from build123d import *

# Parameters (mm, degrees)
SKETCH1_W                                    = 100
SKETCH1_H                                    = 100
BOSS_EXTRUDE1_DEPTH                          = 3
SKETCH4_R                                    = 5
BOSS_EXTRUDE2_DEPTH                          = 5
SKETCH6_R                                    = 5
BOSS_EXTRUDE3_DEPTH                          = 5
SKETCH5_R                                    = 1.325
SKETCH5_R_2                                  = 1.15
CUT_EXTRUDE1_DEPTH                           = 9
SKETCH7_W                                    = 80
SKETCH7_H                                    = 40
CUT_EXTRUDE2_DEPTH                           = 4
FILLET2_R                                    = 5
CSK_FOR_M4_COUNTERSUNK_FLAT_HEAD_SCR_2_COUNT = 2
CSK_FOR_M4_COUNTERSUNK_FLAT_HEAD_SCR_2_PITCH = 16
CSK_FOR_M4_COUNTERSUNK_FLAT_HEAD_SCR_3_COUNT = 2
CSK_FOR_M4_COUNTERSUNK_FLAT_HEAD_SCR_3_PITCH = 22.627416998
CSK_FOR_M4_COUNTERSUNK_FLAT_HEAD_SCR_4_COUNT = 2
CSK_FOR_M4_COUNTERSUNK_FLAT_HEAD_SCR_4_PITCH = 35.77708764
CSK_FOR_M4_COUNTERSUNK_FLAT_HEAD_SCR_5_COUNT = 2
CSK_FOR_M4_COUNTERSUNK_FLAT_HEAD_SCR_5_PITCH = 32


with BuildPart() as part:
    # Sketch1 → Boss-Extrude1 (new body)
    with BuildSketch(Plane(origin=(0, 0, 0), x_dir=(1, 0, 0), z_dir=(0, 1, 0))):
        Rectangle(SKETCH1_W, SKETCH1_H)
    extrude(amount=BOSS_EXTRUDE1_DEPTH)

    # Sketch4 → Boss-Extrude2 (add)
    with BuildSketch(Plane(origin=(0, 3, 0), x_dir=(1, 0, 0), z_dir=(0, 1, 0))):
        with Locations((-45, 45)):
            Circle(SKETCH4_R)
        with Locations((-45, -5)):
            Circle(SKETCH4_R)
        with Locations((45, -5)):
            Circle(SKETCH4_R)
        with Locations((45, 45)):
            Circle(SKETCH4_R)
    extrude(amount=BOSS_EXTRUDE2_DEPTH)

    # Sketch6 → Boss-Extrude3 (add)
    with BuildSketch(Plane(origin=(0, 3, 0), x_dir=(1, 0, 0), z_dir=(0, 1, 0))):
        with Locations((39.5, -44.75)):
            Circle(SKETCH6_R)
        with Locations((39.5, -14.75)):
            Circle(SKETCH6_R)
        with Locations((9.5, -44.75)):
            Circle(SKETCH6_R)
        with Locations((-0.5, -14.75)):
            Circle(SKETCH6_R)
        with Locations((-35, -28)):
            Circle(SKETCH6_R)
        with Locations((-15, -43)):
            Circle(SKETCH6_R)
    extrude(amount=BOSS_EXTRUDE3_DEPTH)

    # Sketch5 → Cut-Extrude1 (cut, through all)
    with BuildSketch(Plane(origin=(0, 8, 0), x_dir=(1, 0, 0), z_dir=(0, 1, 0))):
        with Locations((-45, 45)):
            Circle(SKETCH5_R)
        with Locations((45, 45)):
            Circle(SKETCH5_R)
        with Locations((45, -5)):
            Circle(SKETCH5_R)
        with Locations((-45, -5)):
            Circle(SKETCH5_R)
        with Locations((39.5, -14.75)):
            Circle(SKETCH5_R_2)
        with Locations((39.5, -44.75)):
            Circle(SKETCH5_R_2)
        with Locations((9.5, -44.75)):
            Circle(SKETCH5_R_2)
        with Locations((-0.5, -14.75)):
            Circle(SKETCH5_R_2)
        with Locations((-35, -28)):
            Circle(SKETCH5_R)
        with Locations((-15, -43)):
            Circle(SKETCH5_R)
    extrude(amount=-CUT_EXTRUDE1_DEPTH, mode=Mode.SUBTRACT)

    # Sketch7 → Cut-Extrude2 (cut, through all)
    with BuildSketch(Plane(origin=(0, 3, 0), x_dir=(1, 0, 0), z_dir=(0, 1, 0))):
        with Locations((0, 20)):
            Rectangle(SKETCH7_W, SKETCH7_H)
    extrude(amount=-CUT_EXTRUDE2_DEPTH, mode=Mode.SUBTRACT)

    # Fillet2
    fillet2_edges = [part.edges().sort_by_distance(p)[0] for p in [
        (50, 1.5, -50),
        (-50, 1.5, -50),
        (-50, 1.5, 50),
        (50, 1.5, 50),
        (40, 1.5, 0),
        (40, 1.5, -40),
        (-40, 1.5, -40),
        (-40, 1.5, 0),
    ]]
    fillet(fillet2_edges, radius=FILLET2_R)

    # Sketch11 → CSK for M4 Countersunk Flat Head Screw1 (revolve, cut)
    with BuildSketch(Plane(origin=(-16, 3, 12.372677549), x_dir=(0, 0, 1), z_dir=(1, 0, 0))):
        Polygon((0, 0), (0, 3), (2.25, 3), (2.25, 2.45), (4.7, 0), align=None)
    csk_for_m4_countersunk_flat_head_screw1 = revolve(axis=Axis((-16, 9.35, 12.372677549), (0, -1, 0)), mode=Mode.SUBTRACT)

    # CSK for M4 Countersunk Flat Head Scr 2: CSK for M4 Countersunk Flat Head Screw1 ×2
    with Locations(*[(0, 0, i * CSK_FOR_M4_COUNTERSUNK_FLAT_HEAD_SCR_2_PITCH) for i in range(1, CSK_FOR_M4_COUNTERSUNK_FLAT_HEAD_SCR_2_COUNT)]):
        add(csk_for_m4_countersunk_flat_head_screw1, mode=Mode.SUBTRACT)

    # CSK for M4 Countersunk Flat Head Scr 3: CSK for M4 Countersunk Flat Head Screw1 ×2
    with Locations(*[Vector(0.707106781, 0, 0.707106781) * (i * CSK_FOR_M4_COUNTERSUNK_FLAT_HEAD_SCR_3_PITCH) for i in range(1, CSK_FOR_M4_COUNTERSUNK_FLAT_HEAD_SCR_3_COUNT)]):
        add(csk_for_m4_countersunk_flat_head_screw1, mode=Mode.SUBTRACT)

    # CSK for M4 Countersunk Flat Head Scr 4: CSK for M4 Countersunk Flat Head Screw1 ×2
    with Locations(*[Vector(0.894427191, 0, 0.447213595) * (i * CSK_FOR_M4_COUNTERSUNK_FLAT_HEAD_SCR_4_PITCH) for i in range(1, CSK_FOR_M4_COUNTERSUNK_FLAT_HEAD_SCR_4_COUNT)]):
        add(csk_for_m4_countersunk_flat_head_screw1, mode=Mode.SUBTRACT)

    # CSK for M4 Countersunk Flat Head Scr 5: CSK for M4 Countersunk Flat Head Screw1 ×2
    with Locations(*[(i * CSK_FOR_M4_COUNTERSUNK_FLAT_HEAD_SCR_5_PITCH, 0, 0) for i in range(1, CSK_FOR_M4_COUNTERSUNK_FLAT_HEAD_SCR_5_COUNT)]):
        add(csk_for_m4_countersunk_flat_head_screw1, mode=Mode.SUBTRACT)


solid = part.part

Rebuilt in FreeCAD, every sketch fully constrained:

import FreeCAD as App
import Part
import Sketcher

V = App.Vector
Q = App.Units.Quantity


def edges_at(feature, points):
    """Names of the edges that pass closest to the given points."""
    edges = feature.Shape.Edges
    near = lambda p: min(range(len(edges)), key=lambda i: edges[i].distToShape(Part.Vertex(*p))[0])
    return sorted({f"Edge{near(p) + 1}" for p in points})

doc = App.newDocument("Part")
params = doc.addObject("Spreadsheet::Sheet", "Params")
for row, (alias, value) in enumerate([
    ("sketch1_width", "100 mm"),
    ("pad1_length", "3 mm"),
    ("sketch2_diameter", "10 mm"),
    ("pad2_length", "5 mm"),
    ("sketch3_diameter", "10 mm"),
    ("pad3_length", "5 mm"),
    ("sketch4_diameter", "2.3 mm"),
    ("sketch4_diameter2", "2.65 mm"),
    ("sketch5_width", "80 mm"),
    ("sketch5_height", "40 mm"),
    ("fillet_radius", "5 mm"),
    ("sketch6_width", "3 mm"),
    ("sketch6_height", "4.7 mm"),
    ("sketch6_width2", "0.55 mm"),
    ("groove_angle", "360 deg"),
    ("linearpattern_pitch", "16 mm"),
    ("linearpattern2_pitch", "22.627417 mm"),
    ("linearpattern3_pitch", "35.777088 mm"),
    ("linearpattern4_pitch", "32 mm"),
], start=1):
    params.set(f"A{row}", alias)
    params.set(f"B{row}", "=" + value)
    params.setAlias(f"B{row}", alias)

body = doc.addObject("PartDesign::Body", "Body")

sketch1 = doc.addObject("Sketcher::SketchObject", "Sketch")
body.addObject(sketch1)
sketch1.AttachmentSupport = (doc.XZ_Plane, [""])
sketch1.MapMode = "FlatFace"
sketch1.addGeometry(Part.LineSegment(V(-50, -50, 0), V(-50, 50, 0)), False)
sketch1.addGeometry(Part.LineSegment(V(-50, 50, 0), V(50, 50, 0)), False)
sketch1.addGeometry(Part.LineSegment(V(50, 50, 0), V(50, -50, 0)), False)
sketch1.addGeometry(Part.LineSegment(V(50, -50, 0), V(-50, -50, 0)), False)
sketch1.addConstraint(Sketcher.Constraint("Coincident", 0, 2, 1, 1))
sketch1.addConstraint(Sketcher.Constraint("Coincident", 1, 2, 2, 1))
sketch1.addConstraint(Sketcher.Constraint("Coincident", 2, 2, 3, 1))
sketch1.addConstraint(Sketcher.Constraint("Coincident", 3, 2, 0, 1))
sketch1.addConstraint(Sketcher.Constraint("Vertical", 0))
sketch1.addConstraint(Sketcher.Constraint("Horizontal", 1))
sketch1.addConstraint(Sketcher.Constraint("Vertical", 2))
sketch1.addConstraint(Sketcher.Constraint("Horizontal", 3))
sketch1.addConstraint(Sketcher.Constraint("Symmetric", 0, 2, 2, 2, -1, 1))
sketch1.addConstraint(Sketcher.Constraint("Equal", 3, 0))
sketch1.addConstraint(Sketcher.Constraint("DistanceX", 1, 1, 1, 2, Q("100 mm")))
sketch1.setExpression("Constraints[10]", "Params.sketch1_width")
pad1 = doc.addObject("PartDesign::Pad", "Pad")
body.addObject(pad1)
pad1.Profile = sketch1
pad1.setExpression("Length", "Params.pad1_length")
pad1.Reversed = True

sketch2 = doc.addObject("Sketcher::SketchObject", "Sketch001")
body.addObject(sketch2)
sketch2.AttachmentSupport = (doc.XZ_Plane, [""])
sketch2.MapMode = "FlatFace"
sketch2.AttachmentOffset = App.Placement(V(0, 0, -3), App.Rotation())
sketch2.addGeometry(Part.Circle(V(-45, -45, 0), V(0, 0, 1), 5), False)
sketch2.addGeometry(Part.Circle(V(-45, 5, 0), V(0, 0, 1), 5), False)
sketch2.addGeometry(Part.Circle(V(45, 5, 0), V(0, 0, 1), 5), False)
sketch2.addGeometry(Part.Circle(V(45, -45, 0), V(0, 0, 1), 5), False)
sketch2.addConstraint(Sketcher.Constraint("Equal", 0, 1))
sketch2.addConstraint(Sketcher.Constraint("Equal", 1, 2))
sketch2.addConstraint(Sketcher.Constraint("Equal", 2, 3))
sketch2.addConstraint(Sketcher.Constraint("Symmetric", 1, 3, 2, 3, -2))
sketch2.addConstraint(Sketcher.Constraint("Symmetric", 0, 3, 3, 3, -2))
sketch2.addConstraint(Sketcher.Constraint("Vertical", 0, 3, 1, 3))
sketch2.addConstraint(Sketcher.Constraint("Diameter", 0, Q("10 mm")))
sketch2.addConstraint(Sketcher.Constraint("DistanceX", 0, 3, -1, 1, Q("45 mm")))
sketch2.addConstraint(Sketcher.Constraint("DistanceY", 0, 3, -1, 1, Q("45 mm")))
sketch2.addConstraint(Sketcher.Constraint("DistanceY", -1, 1, 1, 3, Q("5 mm")))
sketch2.setExpression("Constraints[6]", "Params.sketch2_diameter")
pad2 = doc.addObject("PartDesign::Pad", "Pad001")
body.addObject(pad2)
pad2.Profile = sketch2
pad2.setExpression("Length", "Params.pad2_length")
pad2.Reversed = True

sketch3 = doc.addObject("Sketcher::SketchObject", "Sketch002")
body.addObject(sketch3)
sketch3.AttachmentSupport = (doc.XZ_Plane, [""])
sketch3.MapMode = "FlatFace"
sketch3.AttachmentOffset = App.Placement(V(0, 0, -3), App.Rotation())
sketch3.addGeometry(Part.Circle(V(40, 45, 0), V(0, 0, 1), 5), False)
sketch3.addGeometry(Part.Circle(V(40, 15, 0), V(0, 0, 1), 5), False)
sketch3.addGeometry(Part.Circle(V(10, 45, 0), V(0, 0, 1), 5), False)
sketch3.addGeometry(Part.Circle(V(0, 15, 0), V(0, 0, 1), 5), False)
sketch3.addGeometry(Part.Circle(V(-35, 28, 0), V(0, 0, 1), 5), False)
sketch3.addGeometry(Part.Circle(V(-15, 43, 0), V(0, 0, 1), 5), False)
sketch3.addConstraint(Sketcher.Constraint("Equal", 0, 1))
sketch3.addConstraint(Sketcher.Constraint("Equal", 1, 2))
sketch3.addConstraint(Sketcher.Constraint("Equal", 2, 3))
sketch3.addConstraint(Sketcher.Constraint("Equal", 3, 4))
sketch3.addConstraint(Sketcher.Constraint("Equal", 4, 5))
sketch3.addConstraint(Sketcher.Constraint("Horizontal", 0, 3, 2, 3))
sketch3.addConstraint(Sketcher.Constraint("Horizontal", 1, 3, 3, 3))
sketch3.addConstraint(Sketcher.Constraint("Vertical", 0, 3, 1, 3))
sketch3.addConstraint(Sketcher.Constraint("Diameter", 0, Q("10 mm")))
sketch3.addConstraint(Sketcher.Constraint("DistanceX", 4, 3, -1, 1, Q("35 mm")))
sketch3.addConstraint(Sketcher.Constraint("DistanceY", -1, 1, 4, 3, Q("28 mm")))
sketch3.addConstraint(Sketcher.Constraint("DistanceX", 5, 3, -1, 1, Q("15 mm")))
sketch3.addConstraint(Sketcher.Constraint("DistanceY", -1, 1, 5, 3, Q("43 mm")))
sketch3.addConstraint(Sketcher.Constraint("DistanceY", 1, 3, 0, 3, Q("30 mm")))
sketch3.addConstraint(Sketcher.Constraint("DistanceX", 2, 3, 0, 3, Q("30 mm")))
sketch3.addConstraint(Sketcher.Constraint("DistanceX", 3, 3, 2, 3, Q("10 mm")))
sketch3.addConstraint(Sketcher.Constraint("DistanceX", -1, 1, 0, 3, Q("39.5 mm")))
sketch3.addConstraint(Sketcher.Constraint("DistanceY", -1, 1, 0, 3, Q("44.75 mm")))
sketch3.setExpression("Constraints[8]", "Params.sketch3_diameter")
pad3 = doc.addObject("PartDesign::Pad", "Pad002")
body.addObject(pad3)
pad3.Profile = sketch3
pad3.setExpression("Length", "Params.pad3_length")
pad3.Reversed = True

sketch4 = doc.addObject("Sketcher::SketchObject", "Sketch003")
body.addObject(sketch4)
sketch4.AttachmentSupport = (doc.XZ_Plane, [""])
sketch4.MapMode = "FlatFace"
sketch4.AttachmentOffset = App.Placement(V(0, 0, -8), App.Rotation())
sketch4.addGeometry(Part.Circle(V(-45, -45, 0), V(0, 0, 1), 1.3), False)
sketch4.addGeometry(Part.Circle(V(45, -45, 0), V(0, 0, 1), 1.3), False)
sketch4.addGeometry(Part.Circle(V(45, 5, 0), V(0, 0, 1), 1.3), False)
sketch4.addGeometry(Part.Circle(V(-45, 5, 0), V(0, 0, 1), 1.3), False)
sketch4.addGeometry(Part.Circle(V(39.5, 14.8, 0), V(0, 0, 1), 1.1), False)
sketch4.addGeometry(Part.Circle(V(39.5, 44.8, 0), V(0, 0, 1), 1.1), False)
sketch4.addGeometry(Part.Circle(V(9.5, 44.8, 0), V(0, 0, 1), 1.1), False)
sketch4.addGeometry(Part.Circle(V(-0.5, 14.8, 0), V(0, 0, 1), 1.1), False)
sketch4.addGeometry(Part.Circle(V(-35, 28, 0), V(0, 0, 1), 1.3), False)
sketch4.addGeometry(Part.Circle(V(-15, 43, 0), V(0, 0, 1), 1.3), False)
sketch4.addConstraint(Sketcher.Constraint("Equal", 0, 1))
sketch4.addConstraint(Sketcher.Constraint("Equal", 1, 2))
sketch4.addConstraint(Sketcher.Constraint("Equal", 2, 3))
sketch4.addConstraint(Sketcher.Constraint("Equal", 4, 5))
sketch4.addConstraint(Sketcher.Constraint("Equal", 5, 6))
sketch4.addConstraint(Sketcher.Constraint("Equal", 6, 7))
sketch4.addConstraint(Sketcher.Constraint("Equal", 3, 8))
sketch4.addConstraint(Sketcher.Constraint("Equal", 8, 9))
sketch4.addConstraint(Sketcher.Constraint("Symmetric", 0, 3, 1, 3, -2))
sketch4.addConstraint(Sketcher.Constraint("Symmetric", 2, 3, 3, 3, -2))
sketch4.addConstraint(Sketcher.Constraint("Horizontal", 5, 3, 6, 3))
sketch4.addConstraint(Sketcher.Constraint("Horizontal", 4, 3, 7, 3))
sketch4.addConstraint(Sketcher.Constraint("Vertical", 1, 3, 2, 3))
sketch4.addConstraint(Sketcher.Constraint("Vertical", 4, 3, 5, 3))
sketch4.addConstraint(Sketcher.Constraint("Diameter", 4, Q("2.3 mm")))
sketch4.addConstraint(Sketcher.Constraint("Diameter", 0, Q("2.65 mm")))
sketch4.addConstraint(Sketcher.Constraint("DistanceX", 0, 3, -1, 1, Q("45 mm")))
sketch4.addConstraint(Sketcher.Constraint("DistanceY", 0, 3, -1, 1, Q("45 mm")))
sketch4.addConstraint(Sketcher.Constraint("DistanceY", -1, 1, 2, 3, Q("5 mm")))
sketch4.addConstraint(Sketcher.Constraint("DistanceX", 8, 3, -1, 1, Q("35 mm")))
sketch4.addConstraint(Sketcher.Constraint("DistanceY", -1, 1, 8, 3, Q("28 mm")))
sketch4.addConstraint(Sketcher.Constraint("DistanceX", 9, 3, -1, 1, Q("15 mm")))
sketch4.addConstraint(Sketcher.Constraint("DistanceY", -1, 1, 9, 3, Q("43 mm")))
sketch4.addConstraint(Sketcher.Constraint("DistanceY", 4, 3, 5, 3, Q("30 mm")))
sketch4.addConstraint(Sketcher.Constraint("DistanceX", 6, 3, 5, 3, Q("30 mm")))
sketch4.addConstraint(Sketcher.Constraint("DistanceX", 7, 3, 6, 3, Q("10 mm")))
sketch4.addConstraint(Sketcher.Constraint("DistanceX", -1, 1, 4, 3, Q("39.5 mm")))
sketch4.addConstraint(Sketcher.Constraint("DistanceY", -1, 1, 4, 3, Q("14.75 mm")))
sketch4.setExpression("Constraints[14]", "Params.sketch4_diameter")
sketch4.setExpression("Constraints[15]", "Params.sketch4_diameter2")
pocket1 = doc.addObject("PartDesign::Pocket", "Pocket")
body.addObject(pocket1)
pocket1.Profile = sketch4
pocket1.Type = "ThroughAll"
pocket1.Reversed = True

sketch5 = doc.addObject("Sketcher::SketchObject", "Sketch004")
body.addObject(sketch5)
sketch5.AttachmentSupport = (doc.XZ_Plane, [""])
sketch5.MapMode = "FlatFace"
sketch5.AttachmentOffset = App.Placement(V(0, 0, -3), App.Rotation())
sketch5.addGeometry(Part.LineSegment(V(-40, -40, 0), V(-40, 0, 0)), False)
sketch5.addGeometry(Part.LineSegment(V(-40, 0, 0), V(40, 0, 0)), False)
sketch5.addGeometry(Part.LineSegment(V(40, 0, 0), V(40, -40, 0)), False)
sketch5.addGeometry(Part.LineSegment(V(40, -40, 0), V(-40, -40, 0)), False)
sketch5.addConstraint(Sketcher.Constraint("Coincident", 0, 2, 1, 1))
sketch5.addConstraint(Sketcher.Constraint("Coincident", 1, 2, 2, 1))
sketch5.addConstraint(Sketcher.Constraint("Coincident", 2, 2, 3, 1))
sketch5.addConstraint(Sketcher.Constraint("Coincident", 3, 2, 0, 1))
sketch5.addConstraint(Sketcher.Constraint("Vertical", 0))
sketch5.addConstraint(Sketcher.Constraint("Horizontal", 1))
sketch5.addConstraint(Sketcher.Constraint("Vertical", 2))
sketch5.addConstraint(Sketcher.Constraint("Horizontal", 3))
sketch5.addConstraint(Sketcher.Constraint("Symmetric", 0, 2, 1, 2, -1, 1))
sketch5.addConstraint(Sketcher.Constraint("DistanceX", 1, 1, 1, 2, Q("80 mm")))
sketch5.addConstraint(Sketcher.Constraint("DistanceY", 0, 1, 0, 2, Q("40 mm")))
sketch5.setExpression("Constraints[9]", "Params.sketch5_width")
sketch5.setExpression("Constraints[10]", "Params.sketch5_height")
pocket2 = doc.addObject("PartDesign::Pocket", "Pocket001")
body.addObject(pocket2)
pocket2.Profile = sketch5
pocket2.Type = "ThroughAll"
pocket2.Reversed = True
doc.recompute()

fillet = doc.addObject("PartDesign::Fillet", "Fillet")
body.addObject(fillet)
fillet.Base = (pocket2, edges_at(pocket2, [
    (50, 1.5, -50),
    (-50, 1.5, -50),
    (-50, 1.5, 50),
    (50, 1.5, 50),
    (40, 1.5, 0),
    (40, 1.5, -40),
    (-40, 1.5, -40),
    (-40, 1.5, 0),
]))
fillet.setExpression("Radius", "Params.fillet_radius")

sketch6 = doc.addObject("Sketcher::SketchObject", "Sketch005")
body.addObject(sketch6)
sketch6.AttachmentSupport = (doc.YZ_Plane, [""])
sketch6.MapMode = "FlatFace"
sketch6.AttachmentOffset = App.Placement(V(0, 0, -16), App.Rotation())
sketch6.addGeometry(Part.LineSegment(V(0, 12.4, 0), V(3, 12.4, 0)), False)
sketch6.addGeometry(Part.LineSegment(V(3, 12.4, 0), V(3, 17.1, 0)), False)
sketch6.addGeometry(Part.LineSegment(V(3, 17.1, 0), V(0.6, 14.6, 0)), False)
sketch6.addGeometry(Part.LineSegment(V(0.6, 14.6, 0), V(0, 14.6, 0)), False)
sketch6.addGeometry(Part.LineSegment(V(0, 14.6, 0), V(0, 12.4, 0)), False)
sketch6.addGeometry(Part.LineSegment(V(3, 12.4, 0), V(0, 12.4, 0)), True)
sketch6.addConstraint(Sketcher.Constraint("Coincident", 0, 2, 1, 1))
sketch6.addConstraint(Sketcher.Constraint("Coincident", 1, 2, 2, 1))
sketch6.addConstraint(Sketcher.Constraint("Coincident", 2, 2, 3, 1))
sketch6.addConstraint(Sketcher.Constraint("Coincident", 3, 2, 4, 1))
sketch6.addConstraint(Sketcher.Constraint("Coincident", 4, 2, 0, 1))
sketch6.addConstraint(Sketcher.Constraint("Horizontal", 0))
sketch6.addConstraint(Sketcher.Constraint("Vertical", 1))
sketch6.addConstraint(Sketcher.Constraint("Horizontal", 3))
sketch6.addConstraint(Sketcher.Constraint("Vertical", 4))
sketch6.addConstraint(Sketcher.Constraint("Horizontal", 5))
sketch6.addConstraint(Sketcher.Constraint("Coincident", 5, 1, 0, 2))
sketch6.addConstraint(Sketcher.Constraint("PointOnObject", 3, 2, -2))
sketch6.addConstraint(Sketcher.Constraint("PointOnObject", 5, 2, -2))
sketch6.addConstraint(Sketcher.Constraint("DistanceX", 0, 1, 0, 2, Q("3 mm")))
sketch6.addConstraint(Sketcher.Constraint("Angle", 2, Q("-135 deg")))
sketch6.addConstraint(Sketcher.Constraint("DistanceY", 1, 1, 1, 2, Q("4.7 mm")))
sketch6.addConstraint(Sketcher.Constraint("DistanceX", 3, 2, 3, 1, Q("0.55 mm")))
sketch6.addConstraint(Sketcher.Constraint("DistanceY", -1, 1, 0, 2, Q("12.372678 mm")))
sketch6.setExpression("Constraints[13]", "Params.sketch6_width")
sketch6.setExpression("Constraints[15]", "Params.sketch6_height")
sketch6.setExpression("Constraints[16]", "Params.sketch6_width2")
groove = doc.addObject("PartDesign::Groove", "Groove")
body.addObject(groove)
groove.Profile = sketch6
groove.ReferenceAxis = (sketch6, ["Axis0"])
groove.setExpression("Angle", "Params.groove_angle")
doc.recompute()

linearpattern = doc.addObject("PartDesign::LinearPattern", "LinearPattern")
body.addObject(linearpattern)
linearpattern.Originals = [groove]
linearpattern.Direction = (doc.Z_Axis, [""])
linearpattern.Mode = "offset"
linearpattern.setExpression("Offset", "Params.linearpattern_pitch")
linearpattern.Occurrences = 2
body.Tip = linearpattern
doc.recompute()

datumline = doc.addObject("PartDesign::Line", "DatumLine")
body.addObject(datumline)
datumline.Placement = App.Placement(V(0, 0, 0), App.Rotation(V(0, 0, 1), V(0.707106781, 0, 0.707106781)))
linearpattern2 = doc.addObject("PartDesign::LinearPattern", "LinearPattern001")
body.addObject(linearpattern2)
linearpattern2.Originals = [groove]
linearpattern2.Direction = (datumline, [""])
linearpattern2.Mode = "offset"
linearpattern2.setExpression("Offset", "Params.linearpattern2_pitch")
linearpattern2.Occurrences = 2
body.Tip = linearpattern2
doc.recompute()

datumline2 = doc.addObject("PartDesign::Line", "DatumLine001")
body.addObject(datumline2)
datumline2.Placement = App.Placement(V(0, 0, 0), App.Rotation(V(0, 0, 1), V(0.894427191, 0, 0.447213595)))
linearpattern3 = doc.addObject("PartDesign::LinearPattern", "LinearPattern002")
body.addObject(linearpattern3)
linearpattern3.Originals = [groove]
linearpattern3.Direction = (datumline2, [""])
linearpattern3.Mode = "offset"
linearpattern3.setExpression("Offset", "Params.linearpattern3_pitch")
linearpattern3.Occurrences = 2
body.Tip = linearpattern3
doc.recompute()

linearpattern4 = doc.addObject("PartDesign::LinearPattern", "LinearPattern003")
body.addObject(linearpattern4)
linearpattern4.Originals = [groove]
linearpattern4.Direction = (doc.X_Axis, [""])
linearpattern4.Mode = "offset"
linearpattern4.setExpression("Offset", "Params.linearpattern4_pitch")
linearpattern4.Occurrences = 2
body.Tip = linearpattern4

doc.recompute()
